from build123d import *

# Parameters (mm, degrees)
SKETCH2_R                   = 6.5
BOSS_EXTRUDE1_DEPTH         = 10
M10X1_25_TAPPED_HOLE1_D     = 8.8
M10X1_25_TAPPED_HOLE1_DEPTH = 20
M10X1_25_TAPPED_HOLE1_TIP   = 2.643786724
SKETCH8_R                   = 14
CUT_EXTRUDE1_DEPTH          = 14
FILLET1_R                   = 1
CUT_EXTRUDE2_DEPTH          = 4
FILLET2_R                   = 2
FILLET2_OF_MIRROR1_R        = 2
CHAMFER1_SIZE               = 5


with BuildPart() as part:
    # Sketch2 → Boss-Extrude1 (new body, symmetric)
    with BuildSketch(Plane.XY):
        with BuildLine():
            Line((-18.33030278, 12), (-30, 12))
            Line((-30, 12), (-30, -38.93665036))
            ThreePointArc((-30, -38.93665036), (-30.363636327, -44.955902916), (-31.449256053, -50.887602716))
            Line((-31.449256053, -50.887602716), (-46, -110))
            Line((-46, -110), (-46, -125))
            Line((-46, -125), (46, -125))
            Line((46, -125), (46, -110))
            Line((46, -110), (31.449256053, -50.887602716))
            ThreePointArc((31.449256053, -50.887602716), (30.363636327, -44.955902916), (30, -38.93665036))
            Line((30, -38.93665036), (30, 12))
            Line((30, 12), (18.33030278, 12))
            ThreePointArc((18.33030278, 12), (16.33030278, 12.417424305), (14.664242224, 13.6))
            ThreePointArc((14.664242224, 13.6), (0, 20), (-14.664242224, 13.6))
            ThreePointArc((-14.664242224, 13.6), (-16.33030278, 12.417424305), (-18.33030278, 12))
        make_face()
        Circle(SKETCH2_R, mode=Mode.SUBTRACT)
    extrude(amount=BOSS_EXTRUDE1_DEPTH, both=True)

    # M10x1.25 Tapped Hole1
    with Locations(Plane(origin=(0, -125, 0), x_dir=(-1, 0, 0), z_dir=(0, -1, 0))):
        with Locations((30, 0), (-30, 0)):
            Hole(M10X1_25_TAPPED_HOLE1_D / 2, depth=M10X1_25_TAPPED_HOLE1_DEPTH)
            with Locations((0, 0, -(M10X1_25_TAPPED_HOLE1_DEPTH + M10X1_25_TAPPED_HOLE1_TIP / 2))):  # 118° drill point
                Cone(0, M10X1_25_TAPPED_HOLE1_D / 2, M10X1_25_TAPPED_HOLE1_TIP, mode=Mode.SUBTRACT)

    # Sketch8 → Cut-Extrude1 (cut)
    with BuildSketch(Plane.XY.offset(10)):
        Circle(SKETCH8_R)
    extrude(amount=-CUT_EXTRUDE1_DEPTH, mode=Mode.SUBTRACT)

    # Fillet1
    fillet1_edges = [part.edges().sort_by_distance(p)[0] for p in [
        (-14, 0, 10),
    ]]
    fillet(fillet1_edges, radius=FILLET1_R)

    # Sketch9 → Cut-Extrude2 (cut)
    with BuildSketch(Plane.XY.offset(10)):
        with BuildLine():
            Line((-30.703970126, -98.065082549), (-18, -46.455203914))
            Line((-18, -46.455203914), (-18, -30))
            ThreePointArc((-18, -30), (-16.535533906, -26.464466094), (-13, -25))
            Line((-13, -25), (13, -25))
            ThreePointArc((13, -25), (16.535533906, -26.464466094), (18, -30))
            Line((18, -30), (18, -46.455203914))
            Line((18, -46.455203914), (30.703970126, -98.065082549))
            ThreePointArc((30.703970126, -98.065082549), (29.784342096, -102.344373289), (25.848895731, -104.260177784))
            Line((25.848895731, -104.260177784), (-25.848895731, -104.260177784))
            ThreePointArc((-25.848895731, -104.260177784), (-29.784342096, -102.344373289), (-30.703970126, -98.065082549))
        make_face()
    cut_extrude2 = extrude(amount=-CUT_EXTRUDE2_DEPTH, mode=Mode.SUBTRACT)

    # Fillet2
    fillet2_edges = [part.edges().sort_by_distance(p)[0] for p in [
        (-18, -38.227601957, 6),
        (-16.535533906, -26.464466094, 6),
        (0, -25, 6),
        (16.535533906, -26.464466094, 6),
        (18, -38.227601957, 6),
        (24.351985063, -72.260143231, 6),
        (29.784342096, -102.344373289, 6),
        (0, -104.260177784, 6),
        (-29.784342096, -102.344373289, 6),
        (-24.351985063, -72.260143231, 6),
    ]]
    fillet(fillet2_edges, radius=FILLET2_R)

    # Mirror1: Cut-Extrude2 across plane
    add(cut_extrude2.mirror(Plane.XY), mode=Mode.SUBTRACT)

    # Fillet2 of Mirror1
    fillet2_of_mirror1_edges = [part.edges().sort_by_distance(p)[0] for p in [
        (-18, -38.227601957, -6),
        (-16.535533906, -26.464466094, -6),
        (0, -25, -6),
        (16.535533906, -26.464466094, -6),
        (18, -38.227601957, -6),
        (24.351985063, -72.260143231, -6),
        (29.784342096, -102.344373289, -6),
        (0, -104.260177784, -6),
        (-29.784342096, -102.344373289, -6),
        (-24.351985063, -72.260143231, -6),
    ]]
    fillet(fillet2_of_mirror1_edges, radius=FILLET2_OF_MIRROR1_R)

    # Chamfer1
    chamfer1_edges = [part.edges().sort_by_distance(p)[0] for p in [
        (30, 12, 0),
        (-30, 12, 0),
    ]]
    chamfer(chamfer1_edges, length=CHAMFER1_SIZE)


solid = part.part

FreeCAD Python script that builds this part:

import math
import FreeCAD as App
import Part
import Sketcher
from FreeCAD import Vector


def edges_at(feature, points):
    """Names of the edges that pass closest to the given points."""
    edges = feature.Shape.Edges
    near = lambda p: min(range(len(edges)), key=lambda i: edges[i].distToShape(Part.Vertex(*p))[0])
    return sorted({f"Edge{near(p) + 1}" for p in points})

doc = App.newDocument("Part")
params = doc.addObject("Spreadsheet::Sheet", "Params")
for row, (alias, value) in enumerate([
    ("sketch1_diameter", "13 mm"),
    ("sketch1_radius", "50 mm"),
    ("sketch1_radius2", "5 mm"),
    ("sketch1_radius3", "20 mm"),
    ("sketch1_width", "92 mm"),
    ("pad1_length", "20 mm"),
    ("sketch2_diameter", "8.8 mm"),
    ("hole_diameter", "8.8 mm"),
    ("hole_depth", "20 mm"),
    ("sketch3_diameter", "28 mm"),
    ("pocket1_length", "14 mm"),
    ("fillet_radius", "1 mm"),
    ("sketch4_radius", "5 mm"),
    ("sketch4_width", "26 mm"),
    ("pocket2_length", "4 mm"),
    ("fillet2_radius", "2 mm"),
    ("fillet3_radius", "2 mm"),
    ("chamfer_size", "5 mm"),
], start=1):
    params.set(f"A{row}", alias)
    params.set(f"B{row}", "=" + value)
    params.setAlias(f"B{row}", alias)

body = doc.addObject("PartDesign::Body", "Body")

# Sketch on XY plane
sketch1 = body.newObject("Sketcher::SketchObject", "Sketch")
sketch1.AttachmentSupport = (doc.getObject("XY_Plane"), [""])
sketch1.MapMode = "FlatFace"
sketch1.addGeometry([
    Part.LineSegment(Vector(-18.3, 12, 0), Vector(-30, 12, 0)),  # 0
    Part.LineSegment(Vector(-30, 12, 0), Vector(-30, -38.9, 0)),  # 1
    Part.ArcOfCircle(Part.Circle(Vector(-80, -38.9, 0), Vector(0, 0, 1), 50), math.radians(-13.83), math.radians(0)),  # 2
    Part.LineSegment(Vector(-31.4, -50.9, 0), Vector(-46, -110, 0)),  # 3
    Part.LineSegment(Vector(-46, -110, 0), Vector(-46, -125, 0)),  # 4
    Part.LineSegment(Vector(-46, -125, 0), Vector(46, -125, 0)),  # 5
    Part.LineSegment(Vector(46, -125, 0), Vector(46, -110, 0)),  # 6
    Part.LineSegment(Vector(46, -110, 0), Vector(31.4, -50.9, 0)),  # 7
    Part.ArcOfCircle(Part.Circle(Vector(80, -38.9, 0), Vector(0, 0, 1), 50), math.radians(180), math.radians(193.83)),  # 8
    Part.LineSegment(Vector(30, -38.9, 0), Vector(30, 12, 0)),  # 9
    Part.LineSegment(Vector(30, 12, 0), Vector(18.3, 12, 0)),  # 10
    Part.ArcOfCircle(Part.Circle(Vector(18.3, 17, 0), Vector(0, 0, 1), 5), math.radians(-137), math.radians(-90)),  # 11
    Part.ArcOfCircle(Part.Circle(Vector(0, 0, 0), Vector(0, 0, 1), 20), math.radians(43), math.radians(137)),  # 12
    Part.ArcOfCircle(Part.Circle(Vector(-18.3, 17, 0), Vector(0, 0, 1), 5), math.radians(-90), math.radians(-43)),  # 13
    Part.Circle(Vector(0, 0, 0), Vector(0, 0, 1), 6.5),  # 14
], False)
sketch1.addConstraint([
    Sketcher.Constraint("Coincident", 0, 2, 1, 1),
    Sketcher.Constraint("Tangent", 1, 2, 2, 2),
    Sketcher.Constraint("Tangent", 2, 1, 3, 1),
    Sketcher.Constraint("Coincident", 3, 2, 4, 1),
    Sketcher.Constraint("Coincident", 4, 2, 5, 1),
    Sketcher.Constraint("Coincident", 5, 2, 6, 1),
    Sketcher.Constraint("Coincident", 6, 2, 7, 1),
    Sketcher.Constraint("Tangent", 7, 2, 8, 2),
    Sketcher.Constraint("Tangent", 8, 1, 9, 1),
    Sketcher.Constraint("Coincident", 9, 2, 10, 1),
    Sketcher.Constraint("Tangent", 10, 2, 11, 2),
    Sketcher.Constraint("Tangent", 11, 1, 12, 1),
    Sketcher.Constraint("Tangent", 12, 2, 13, 2),
    Sketcher.Constraint("Tangent", 13, 1, 0, 1),
    Sketcher.Constraint("Horizontal", 0),
    Sketcher.Constraint("Vertical", 1),
    Sketcher.Constraint("Vertical", 4),
    Sketcher.Constraint("Horizontal", 5),
    Sketcher.Constraint("Vertical", 6),
    Sketcher.Constraint("Vertical", 9),
    Sketcher.Constraint("Horizontal", 10),
    Sketcher.Constraint("Coincident", 12, 3, -1, 1),
    Sketcher.Constraint("Coincident", 14, 3, -1, 1),
    Sketcher.Constraint("Equal", 2, 8),
    Sketcher.Constraint("Equal", 11, 13),
    Sketcher.Constraint("Symmetric", 2, 3, 8, 3, -2),
    Sketcher.Constraint("Symmetric", 3, 2, 6, 2, -2),
    Sketcher.Constraint("Horizontal", 11, 3, 13, 3),
    Sketcher.Constraint("Diameter", 14, 13.0),
    Sketcher.Constraint("Radius", 2, 50.0),
    Sketcher.Constraint("Radius", 11, 5.0),
    Sketcher.Constraint("Radius", 12, 20.0),
    Sketcher.Constraint("DistanceX", 5, 1, 5, 2, 92.0),
    Sketcher.Constraint("DistanceY", 4, 2, 4, 1, 15.0),
    Sketcher.Constraint("DistanceX", 2, 3, -1, 1, 80.0),
    Sketcher.Constraint("DistanceY", -1, 1, 11, 3, 17.0),
    Sketcher.Constraint("DistanceY", 3, 2, -1, 1, 110.0),
    Sketcher.Constraint("DistanceY", 1, 2, 1, 1, 50.93665),
])
sketch1.setExpression("Constraints[28]", "Params.sketch1_diameter")
sketch1.setExpression("Constraints[29]", "Params.sketch1_radius")
sketch1.setExpression("Constraints[30]", "Params.sketch1_radius2")
sketch1.setExpression("Constraints[31]", "Params.sketch1_radius3")
sketch1.setExpression("Constraints[32]", "Params.sketch1_width")
pad1 = body.newObject("PartDesign::Pad", "Pad")
pad1.Profile = sketch1
pad1.setExpression("Length", "Params.pad1_length")
pad1.Midplane = True

# Sketch on XZ plane
sketch2 = body.newObject("Sketcher::SketchObject", "Sketch001")
sketch2.AttachmentSupport = (doc.getObject("XZ_Plane"), [""])
sketch2.MapMode = "FlatFace"
sketch2.AttachmentOffset = App.Placement(Vector(0, 0, 125), App.Rotation())
sketch2.addGeometry([
    Part.Circle(Vector(-30, 0, 0), Vector(0, 0, 1), 4.4),
    Part.Circle(Vector(30, 0, 0), Vector(0, 0, 1), 4.4),
], False)
sketch2.addConstraint([
    Sketcher.Constraint("Equal", 0, 1),
    Sketcher.Constraint("Symmetric", 0, 3, 1, 3, -1, 1),
    Sketcher.Constraint("PointOnObject", 0, 3, -1),
    Sketcher.Constraint("Diameter", 0, 8.8),
    Sketcher.Constraint("DistanceX", 0, 3, -1, 1, 30.0),
])
sketch2.setExpression("Constraints[3]", "Params.sketch2_diameter")
doc.recompute()
hole = body.newObject("PartDesign::Hole", "Hole")
hole.Profile = sketch2
hole.ThreadType = "None"
hole.setExpression("Diameter", "Params.hole_diameter")
hole.DepthType = "Dimension"
hole.setExpression("Depth", "Params.hole_depth")
hole.DrillPoint = "Angled"
hole.DrillPointAngle = 118

# Sketch on XY plane
sketch3 = body.newObject("Sketcher::SketchObject", "Sketch002")
sketch3.AttachmentSupport = (doc.getObject("XY_Plane"), [""])
sketch3.MapMode = "FlatFace"
sketch3.AttachmentOffset = App.Placement(Vector(0, 0, 10), App.Rotation())
sketch3.addGeometry(Part.Circle(Vector(0, 0, 0), Vector(0, 0, 1), 14), False)
sketch3.addConstraint([
    Sketcher.Constraint("Coincident", 0, 3, -1, 1),
    Sketcher.Constraint("Diameter", 0, 28.0),
])
sketch3.setExpression("Constraints[1]", "Params.sketch3_diameter")
pocket1 = body.newObject("PartDesign::Pocket", "Pocket")
pocket1.Profile = sketch3
pocket1.setExpression("Length", "Params.pocket1_length")
doc.recompute()

fillet = body.newObject("PartDesign::Fillet", "Fillet")
fillet.Base = (pocket1, edges_at(pocket1, [(-14, 0, 10)]))
fillet.setExpression("Radius", "Params.fillet_radius")

# Sketch on XY plane
sketch4 = body.newObject("Sketcher::SketchObject", "Sketch003")
sketch4.AttachmentSupport = (doc.getObject("XY_Plane"), [""])
sketch4.MapMode = "FlatFace"
sketch4.AttachmentOffset = App.Placement(Vector(0, 0, 10), App.Rotation())
sketch4.addGeometry([
    Part.LineSegment(Vector(-18, -46.5, 0), Vector(-30.7, -98.1, 0)),  # 0
    Part.ArcOfCircle(Part.Circle(Vector(-25.8, -99.3, 0), Vector(0, 0, 1), 5), math.radians(166), math.radians(270)),  # 1
    Part.LineSegment(Vector(-25.8, -104.3, 0), Vector(25.8, -104.3, 0)),  # 2
    Part.ArcOfCircle(Part.Circle(Vector(25.8, -99.3, 0), Vector(0, 0, 1), 5), math.radians(-90), math.radians(14)),  # 3
    Part.LineSegment(Vector(30.7, -98.1, 0), Vector(18, -46.5, 0)),  # 4
    Part.LineSegment(Vector(18, -46.5, 0), Vector(18, -30, 0)),  # 5
    Part.ArcOfCircle(Part.Circle(Vector(13, -30, 0), Vector(0, 0, 1), 5), math.radians(0), math.radians(90)),  # 6
    Part.LineSegment(Vector(13, -25, 0), Vector(-13, -25, 0)),  # 7
    Part.ArcOfCircle(Part.Circle(Vector(-13, -30, 0), Vector(0, 0, 1), 5), math.radians(90), math.radians(180)),  # 8
    Part.LineSegment(Vector(-18, -30, 0), Vector(-18, -46.5, 0)),  # 9
], False)
sketch4.addConstraint([
    Sketcher.Constraint("Tangent", 0, 2, 1, 1),
    Sketcher.Constraint("Tangent", 1, 2, 2, 1),
    Sketcher.Constraint("Tangent", 2, 2, 3, 1),
    Sketcher.Constraint("Tangent", 3, 2, 4, 1),
    Sketcher.Constraint("Coincident", 4, 2, 5, 1),
    Sketcher.Constraint("Tangent", 5, 2, 6, 1),
    Sketcher.Constraint("Tangent", 6, 2, 7, 1),
    Sketcher.Constraint("Tangent", 7, 2, 8, 1),
    Sketcher.Constraint("Tangent", 8, 2, 9, 1),
    Sketcher.Constraint("Coincident", 9, 2, 0, 1),
    Sketcher.Constraint("Horizontal", 2),
    Sketcher.Constraint("Vertical", 5),
    Sketcher.Constraint("Horizontal", 7),
    Sketcher.Constraint("Vertical", 9),
    Sketcher.Constraint("Equal", 1, 3),
    Sketcher.Constraint("Equal", 3, 6),
    Sketcher.Constraint("Equal", 6, 8),
    Sketcher.Constraint("Symmetric", 0, 2, 3, 2, -2),
    Sketcher.Constraint("Horizontal", 4, 2, 9, 2),
    Sketcher.Constraint("Radius", 1, 5.0),
    Sketcher.Constraint("DistanceX", 7, 2, 7, 1, 26.0),
    Sketcher.Constraint("DistanceY", 6, 3, -1, 1, 30.0),
    Sketcher.Constraint("DistanceX", 2, 1, 2, 2, 51.697791),
    Sketcher.Constraint("Distance", 0, 53.150451),
    Sketcher.Constraint("DistanceY", 5, 1, 5, 2, 16.455204),
])
sketch4.setExpression("Constraints[19]", "Params.sketch4_radius")
sketch4.setExpression("Constraints[20]", "Params.sketch4_width")
pocket2 = body.newObject("PartDesign::Pocket", "Pocket001")
pocket2.Profile = sketch4
pocket2.setExpression("Length", "Params.pocket2_length")
doc.recompute()

fillet2 = body.newObject("PartDesign::Fillet", "Fillet001")
fillet2.Base = (pocket2, edges_at(pocket2, [
    (-18, -38.228, 6),
    (-16.536, -26.464, 6),
    (0, -25, 6),
    (16.536, -26.464, 6),
    (18, -38.228, 6),
    (24.352, -72.26, 6),
    (29.784, -102.344, 6),
    (0, -104.26, 6),
    (-29.784, -102.344, 6),
    (-24.352, -72.26, 6),
]))
fillet2.setExpression("Radius", "Params.fillet2_radius")
doc.recompute()

mirrored = body.newObject("PartDesign::Mirrored", "Mirrored")
mirrored.Originals = [pocket2]
mirrored.MirrorPlane = (doc.getObject("XY_Plane"), [""])
body.Tip = mirrored
doc.recompute()

fillet3 = body.newObject("PartDesign::Fillet", "Fillet002")
fillet3.Base = (mirrored, edges_at(mirrored, [
    (-18, -38.228, -6),
    (-16.536, -26.464, -6),
    (0, -25, -6),
    (16.536, -26.464, -6),
    (18, -38.228, -6),
    (24.352, -72.26, -6),
    (29.784, -102.344, -6),
    (0, -104.26, -6),
    (-29.784, -102.344, -6),
    (-24.352, -72.26, -6),
]))
fillet3.setExpression("Radius", "Params.fillet3_radius")
doc.recompute()

chamfer = body.newObject("PartDesign::Chamfer", "Chamfer")
chamfer.Base = (fillet3, edges_at(fillet3, [(30, 12, 0), (-30, 12, 0)]))
chamfer.setExpression("Size", "Params.chamfer_size")

doc.recompute()
